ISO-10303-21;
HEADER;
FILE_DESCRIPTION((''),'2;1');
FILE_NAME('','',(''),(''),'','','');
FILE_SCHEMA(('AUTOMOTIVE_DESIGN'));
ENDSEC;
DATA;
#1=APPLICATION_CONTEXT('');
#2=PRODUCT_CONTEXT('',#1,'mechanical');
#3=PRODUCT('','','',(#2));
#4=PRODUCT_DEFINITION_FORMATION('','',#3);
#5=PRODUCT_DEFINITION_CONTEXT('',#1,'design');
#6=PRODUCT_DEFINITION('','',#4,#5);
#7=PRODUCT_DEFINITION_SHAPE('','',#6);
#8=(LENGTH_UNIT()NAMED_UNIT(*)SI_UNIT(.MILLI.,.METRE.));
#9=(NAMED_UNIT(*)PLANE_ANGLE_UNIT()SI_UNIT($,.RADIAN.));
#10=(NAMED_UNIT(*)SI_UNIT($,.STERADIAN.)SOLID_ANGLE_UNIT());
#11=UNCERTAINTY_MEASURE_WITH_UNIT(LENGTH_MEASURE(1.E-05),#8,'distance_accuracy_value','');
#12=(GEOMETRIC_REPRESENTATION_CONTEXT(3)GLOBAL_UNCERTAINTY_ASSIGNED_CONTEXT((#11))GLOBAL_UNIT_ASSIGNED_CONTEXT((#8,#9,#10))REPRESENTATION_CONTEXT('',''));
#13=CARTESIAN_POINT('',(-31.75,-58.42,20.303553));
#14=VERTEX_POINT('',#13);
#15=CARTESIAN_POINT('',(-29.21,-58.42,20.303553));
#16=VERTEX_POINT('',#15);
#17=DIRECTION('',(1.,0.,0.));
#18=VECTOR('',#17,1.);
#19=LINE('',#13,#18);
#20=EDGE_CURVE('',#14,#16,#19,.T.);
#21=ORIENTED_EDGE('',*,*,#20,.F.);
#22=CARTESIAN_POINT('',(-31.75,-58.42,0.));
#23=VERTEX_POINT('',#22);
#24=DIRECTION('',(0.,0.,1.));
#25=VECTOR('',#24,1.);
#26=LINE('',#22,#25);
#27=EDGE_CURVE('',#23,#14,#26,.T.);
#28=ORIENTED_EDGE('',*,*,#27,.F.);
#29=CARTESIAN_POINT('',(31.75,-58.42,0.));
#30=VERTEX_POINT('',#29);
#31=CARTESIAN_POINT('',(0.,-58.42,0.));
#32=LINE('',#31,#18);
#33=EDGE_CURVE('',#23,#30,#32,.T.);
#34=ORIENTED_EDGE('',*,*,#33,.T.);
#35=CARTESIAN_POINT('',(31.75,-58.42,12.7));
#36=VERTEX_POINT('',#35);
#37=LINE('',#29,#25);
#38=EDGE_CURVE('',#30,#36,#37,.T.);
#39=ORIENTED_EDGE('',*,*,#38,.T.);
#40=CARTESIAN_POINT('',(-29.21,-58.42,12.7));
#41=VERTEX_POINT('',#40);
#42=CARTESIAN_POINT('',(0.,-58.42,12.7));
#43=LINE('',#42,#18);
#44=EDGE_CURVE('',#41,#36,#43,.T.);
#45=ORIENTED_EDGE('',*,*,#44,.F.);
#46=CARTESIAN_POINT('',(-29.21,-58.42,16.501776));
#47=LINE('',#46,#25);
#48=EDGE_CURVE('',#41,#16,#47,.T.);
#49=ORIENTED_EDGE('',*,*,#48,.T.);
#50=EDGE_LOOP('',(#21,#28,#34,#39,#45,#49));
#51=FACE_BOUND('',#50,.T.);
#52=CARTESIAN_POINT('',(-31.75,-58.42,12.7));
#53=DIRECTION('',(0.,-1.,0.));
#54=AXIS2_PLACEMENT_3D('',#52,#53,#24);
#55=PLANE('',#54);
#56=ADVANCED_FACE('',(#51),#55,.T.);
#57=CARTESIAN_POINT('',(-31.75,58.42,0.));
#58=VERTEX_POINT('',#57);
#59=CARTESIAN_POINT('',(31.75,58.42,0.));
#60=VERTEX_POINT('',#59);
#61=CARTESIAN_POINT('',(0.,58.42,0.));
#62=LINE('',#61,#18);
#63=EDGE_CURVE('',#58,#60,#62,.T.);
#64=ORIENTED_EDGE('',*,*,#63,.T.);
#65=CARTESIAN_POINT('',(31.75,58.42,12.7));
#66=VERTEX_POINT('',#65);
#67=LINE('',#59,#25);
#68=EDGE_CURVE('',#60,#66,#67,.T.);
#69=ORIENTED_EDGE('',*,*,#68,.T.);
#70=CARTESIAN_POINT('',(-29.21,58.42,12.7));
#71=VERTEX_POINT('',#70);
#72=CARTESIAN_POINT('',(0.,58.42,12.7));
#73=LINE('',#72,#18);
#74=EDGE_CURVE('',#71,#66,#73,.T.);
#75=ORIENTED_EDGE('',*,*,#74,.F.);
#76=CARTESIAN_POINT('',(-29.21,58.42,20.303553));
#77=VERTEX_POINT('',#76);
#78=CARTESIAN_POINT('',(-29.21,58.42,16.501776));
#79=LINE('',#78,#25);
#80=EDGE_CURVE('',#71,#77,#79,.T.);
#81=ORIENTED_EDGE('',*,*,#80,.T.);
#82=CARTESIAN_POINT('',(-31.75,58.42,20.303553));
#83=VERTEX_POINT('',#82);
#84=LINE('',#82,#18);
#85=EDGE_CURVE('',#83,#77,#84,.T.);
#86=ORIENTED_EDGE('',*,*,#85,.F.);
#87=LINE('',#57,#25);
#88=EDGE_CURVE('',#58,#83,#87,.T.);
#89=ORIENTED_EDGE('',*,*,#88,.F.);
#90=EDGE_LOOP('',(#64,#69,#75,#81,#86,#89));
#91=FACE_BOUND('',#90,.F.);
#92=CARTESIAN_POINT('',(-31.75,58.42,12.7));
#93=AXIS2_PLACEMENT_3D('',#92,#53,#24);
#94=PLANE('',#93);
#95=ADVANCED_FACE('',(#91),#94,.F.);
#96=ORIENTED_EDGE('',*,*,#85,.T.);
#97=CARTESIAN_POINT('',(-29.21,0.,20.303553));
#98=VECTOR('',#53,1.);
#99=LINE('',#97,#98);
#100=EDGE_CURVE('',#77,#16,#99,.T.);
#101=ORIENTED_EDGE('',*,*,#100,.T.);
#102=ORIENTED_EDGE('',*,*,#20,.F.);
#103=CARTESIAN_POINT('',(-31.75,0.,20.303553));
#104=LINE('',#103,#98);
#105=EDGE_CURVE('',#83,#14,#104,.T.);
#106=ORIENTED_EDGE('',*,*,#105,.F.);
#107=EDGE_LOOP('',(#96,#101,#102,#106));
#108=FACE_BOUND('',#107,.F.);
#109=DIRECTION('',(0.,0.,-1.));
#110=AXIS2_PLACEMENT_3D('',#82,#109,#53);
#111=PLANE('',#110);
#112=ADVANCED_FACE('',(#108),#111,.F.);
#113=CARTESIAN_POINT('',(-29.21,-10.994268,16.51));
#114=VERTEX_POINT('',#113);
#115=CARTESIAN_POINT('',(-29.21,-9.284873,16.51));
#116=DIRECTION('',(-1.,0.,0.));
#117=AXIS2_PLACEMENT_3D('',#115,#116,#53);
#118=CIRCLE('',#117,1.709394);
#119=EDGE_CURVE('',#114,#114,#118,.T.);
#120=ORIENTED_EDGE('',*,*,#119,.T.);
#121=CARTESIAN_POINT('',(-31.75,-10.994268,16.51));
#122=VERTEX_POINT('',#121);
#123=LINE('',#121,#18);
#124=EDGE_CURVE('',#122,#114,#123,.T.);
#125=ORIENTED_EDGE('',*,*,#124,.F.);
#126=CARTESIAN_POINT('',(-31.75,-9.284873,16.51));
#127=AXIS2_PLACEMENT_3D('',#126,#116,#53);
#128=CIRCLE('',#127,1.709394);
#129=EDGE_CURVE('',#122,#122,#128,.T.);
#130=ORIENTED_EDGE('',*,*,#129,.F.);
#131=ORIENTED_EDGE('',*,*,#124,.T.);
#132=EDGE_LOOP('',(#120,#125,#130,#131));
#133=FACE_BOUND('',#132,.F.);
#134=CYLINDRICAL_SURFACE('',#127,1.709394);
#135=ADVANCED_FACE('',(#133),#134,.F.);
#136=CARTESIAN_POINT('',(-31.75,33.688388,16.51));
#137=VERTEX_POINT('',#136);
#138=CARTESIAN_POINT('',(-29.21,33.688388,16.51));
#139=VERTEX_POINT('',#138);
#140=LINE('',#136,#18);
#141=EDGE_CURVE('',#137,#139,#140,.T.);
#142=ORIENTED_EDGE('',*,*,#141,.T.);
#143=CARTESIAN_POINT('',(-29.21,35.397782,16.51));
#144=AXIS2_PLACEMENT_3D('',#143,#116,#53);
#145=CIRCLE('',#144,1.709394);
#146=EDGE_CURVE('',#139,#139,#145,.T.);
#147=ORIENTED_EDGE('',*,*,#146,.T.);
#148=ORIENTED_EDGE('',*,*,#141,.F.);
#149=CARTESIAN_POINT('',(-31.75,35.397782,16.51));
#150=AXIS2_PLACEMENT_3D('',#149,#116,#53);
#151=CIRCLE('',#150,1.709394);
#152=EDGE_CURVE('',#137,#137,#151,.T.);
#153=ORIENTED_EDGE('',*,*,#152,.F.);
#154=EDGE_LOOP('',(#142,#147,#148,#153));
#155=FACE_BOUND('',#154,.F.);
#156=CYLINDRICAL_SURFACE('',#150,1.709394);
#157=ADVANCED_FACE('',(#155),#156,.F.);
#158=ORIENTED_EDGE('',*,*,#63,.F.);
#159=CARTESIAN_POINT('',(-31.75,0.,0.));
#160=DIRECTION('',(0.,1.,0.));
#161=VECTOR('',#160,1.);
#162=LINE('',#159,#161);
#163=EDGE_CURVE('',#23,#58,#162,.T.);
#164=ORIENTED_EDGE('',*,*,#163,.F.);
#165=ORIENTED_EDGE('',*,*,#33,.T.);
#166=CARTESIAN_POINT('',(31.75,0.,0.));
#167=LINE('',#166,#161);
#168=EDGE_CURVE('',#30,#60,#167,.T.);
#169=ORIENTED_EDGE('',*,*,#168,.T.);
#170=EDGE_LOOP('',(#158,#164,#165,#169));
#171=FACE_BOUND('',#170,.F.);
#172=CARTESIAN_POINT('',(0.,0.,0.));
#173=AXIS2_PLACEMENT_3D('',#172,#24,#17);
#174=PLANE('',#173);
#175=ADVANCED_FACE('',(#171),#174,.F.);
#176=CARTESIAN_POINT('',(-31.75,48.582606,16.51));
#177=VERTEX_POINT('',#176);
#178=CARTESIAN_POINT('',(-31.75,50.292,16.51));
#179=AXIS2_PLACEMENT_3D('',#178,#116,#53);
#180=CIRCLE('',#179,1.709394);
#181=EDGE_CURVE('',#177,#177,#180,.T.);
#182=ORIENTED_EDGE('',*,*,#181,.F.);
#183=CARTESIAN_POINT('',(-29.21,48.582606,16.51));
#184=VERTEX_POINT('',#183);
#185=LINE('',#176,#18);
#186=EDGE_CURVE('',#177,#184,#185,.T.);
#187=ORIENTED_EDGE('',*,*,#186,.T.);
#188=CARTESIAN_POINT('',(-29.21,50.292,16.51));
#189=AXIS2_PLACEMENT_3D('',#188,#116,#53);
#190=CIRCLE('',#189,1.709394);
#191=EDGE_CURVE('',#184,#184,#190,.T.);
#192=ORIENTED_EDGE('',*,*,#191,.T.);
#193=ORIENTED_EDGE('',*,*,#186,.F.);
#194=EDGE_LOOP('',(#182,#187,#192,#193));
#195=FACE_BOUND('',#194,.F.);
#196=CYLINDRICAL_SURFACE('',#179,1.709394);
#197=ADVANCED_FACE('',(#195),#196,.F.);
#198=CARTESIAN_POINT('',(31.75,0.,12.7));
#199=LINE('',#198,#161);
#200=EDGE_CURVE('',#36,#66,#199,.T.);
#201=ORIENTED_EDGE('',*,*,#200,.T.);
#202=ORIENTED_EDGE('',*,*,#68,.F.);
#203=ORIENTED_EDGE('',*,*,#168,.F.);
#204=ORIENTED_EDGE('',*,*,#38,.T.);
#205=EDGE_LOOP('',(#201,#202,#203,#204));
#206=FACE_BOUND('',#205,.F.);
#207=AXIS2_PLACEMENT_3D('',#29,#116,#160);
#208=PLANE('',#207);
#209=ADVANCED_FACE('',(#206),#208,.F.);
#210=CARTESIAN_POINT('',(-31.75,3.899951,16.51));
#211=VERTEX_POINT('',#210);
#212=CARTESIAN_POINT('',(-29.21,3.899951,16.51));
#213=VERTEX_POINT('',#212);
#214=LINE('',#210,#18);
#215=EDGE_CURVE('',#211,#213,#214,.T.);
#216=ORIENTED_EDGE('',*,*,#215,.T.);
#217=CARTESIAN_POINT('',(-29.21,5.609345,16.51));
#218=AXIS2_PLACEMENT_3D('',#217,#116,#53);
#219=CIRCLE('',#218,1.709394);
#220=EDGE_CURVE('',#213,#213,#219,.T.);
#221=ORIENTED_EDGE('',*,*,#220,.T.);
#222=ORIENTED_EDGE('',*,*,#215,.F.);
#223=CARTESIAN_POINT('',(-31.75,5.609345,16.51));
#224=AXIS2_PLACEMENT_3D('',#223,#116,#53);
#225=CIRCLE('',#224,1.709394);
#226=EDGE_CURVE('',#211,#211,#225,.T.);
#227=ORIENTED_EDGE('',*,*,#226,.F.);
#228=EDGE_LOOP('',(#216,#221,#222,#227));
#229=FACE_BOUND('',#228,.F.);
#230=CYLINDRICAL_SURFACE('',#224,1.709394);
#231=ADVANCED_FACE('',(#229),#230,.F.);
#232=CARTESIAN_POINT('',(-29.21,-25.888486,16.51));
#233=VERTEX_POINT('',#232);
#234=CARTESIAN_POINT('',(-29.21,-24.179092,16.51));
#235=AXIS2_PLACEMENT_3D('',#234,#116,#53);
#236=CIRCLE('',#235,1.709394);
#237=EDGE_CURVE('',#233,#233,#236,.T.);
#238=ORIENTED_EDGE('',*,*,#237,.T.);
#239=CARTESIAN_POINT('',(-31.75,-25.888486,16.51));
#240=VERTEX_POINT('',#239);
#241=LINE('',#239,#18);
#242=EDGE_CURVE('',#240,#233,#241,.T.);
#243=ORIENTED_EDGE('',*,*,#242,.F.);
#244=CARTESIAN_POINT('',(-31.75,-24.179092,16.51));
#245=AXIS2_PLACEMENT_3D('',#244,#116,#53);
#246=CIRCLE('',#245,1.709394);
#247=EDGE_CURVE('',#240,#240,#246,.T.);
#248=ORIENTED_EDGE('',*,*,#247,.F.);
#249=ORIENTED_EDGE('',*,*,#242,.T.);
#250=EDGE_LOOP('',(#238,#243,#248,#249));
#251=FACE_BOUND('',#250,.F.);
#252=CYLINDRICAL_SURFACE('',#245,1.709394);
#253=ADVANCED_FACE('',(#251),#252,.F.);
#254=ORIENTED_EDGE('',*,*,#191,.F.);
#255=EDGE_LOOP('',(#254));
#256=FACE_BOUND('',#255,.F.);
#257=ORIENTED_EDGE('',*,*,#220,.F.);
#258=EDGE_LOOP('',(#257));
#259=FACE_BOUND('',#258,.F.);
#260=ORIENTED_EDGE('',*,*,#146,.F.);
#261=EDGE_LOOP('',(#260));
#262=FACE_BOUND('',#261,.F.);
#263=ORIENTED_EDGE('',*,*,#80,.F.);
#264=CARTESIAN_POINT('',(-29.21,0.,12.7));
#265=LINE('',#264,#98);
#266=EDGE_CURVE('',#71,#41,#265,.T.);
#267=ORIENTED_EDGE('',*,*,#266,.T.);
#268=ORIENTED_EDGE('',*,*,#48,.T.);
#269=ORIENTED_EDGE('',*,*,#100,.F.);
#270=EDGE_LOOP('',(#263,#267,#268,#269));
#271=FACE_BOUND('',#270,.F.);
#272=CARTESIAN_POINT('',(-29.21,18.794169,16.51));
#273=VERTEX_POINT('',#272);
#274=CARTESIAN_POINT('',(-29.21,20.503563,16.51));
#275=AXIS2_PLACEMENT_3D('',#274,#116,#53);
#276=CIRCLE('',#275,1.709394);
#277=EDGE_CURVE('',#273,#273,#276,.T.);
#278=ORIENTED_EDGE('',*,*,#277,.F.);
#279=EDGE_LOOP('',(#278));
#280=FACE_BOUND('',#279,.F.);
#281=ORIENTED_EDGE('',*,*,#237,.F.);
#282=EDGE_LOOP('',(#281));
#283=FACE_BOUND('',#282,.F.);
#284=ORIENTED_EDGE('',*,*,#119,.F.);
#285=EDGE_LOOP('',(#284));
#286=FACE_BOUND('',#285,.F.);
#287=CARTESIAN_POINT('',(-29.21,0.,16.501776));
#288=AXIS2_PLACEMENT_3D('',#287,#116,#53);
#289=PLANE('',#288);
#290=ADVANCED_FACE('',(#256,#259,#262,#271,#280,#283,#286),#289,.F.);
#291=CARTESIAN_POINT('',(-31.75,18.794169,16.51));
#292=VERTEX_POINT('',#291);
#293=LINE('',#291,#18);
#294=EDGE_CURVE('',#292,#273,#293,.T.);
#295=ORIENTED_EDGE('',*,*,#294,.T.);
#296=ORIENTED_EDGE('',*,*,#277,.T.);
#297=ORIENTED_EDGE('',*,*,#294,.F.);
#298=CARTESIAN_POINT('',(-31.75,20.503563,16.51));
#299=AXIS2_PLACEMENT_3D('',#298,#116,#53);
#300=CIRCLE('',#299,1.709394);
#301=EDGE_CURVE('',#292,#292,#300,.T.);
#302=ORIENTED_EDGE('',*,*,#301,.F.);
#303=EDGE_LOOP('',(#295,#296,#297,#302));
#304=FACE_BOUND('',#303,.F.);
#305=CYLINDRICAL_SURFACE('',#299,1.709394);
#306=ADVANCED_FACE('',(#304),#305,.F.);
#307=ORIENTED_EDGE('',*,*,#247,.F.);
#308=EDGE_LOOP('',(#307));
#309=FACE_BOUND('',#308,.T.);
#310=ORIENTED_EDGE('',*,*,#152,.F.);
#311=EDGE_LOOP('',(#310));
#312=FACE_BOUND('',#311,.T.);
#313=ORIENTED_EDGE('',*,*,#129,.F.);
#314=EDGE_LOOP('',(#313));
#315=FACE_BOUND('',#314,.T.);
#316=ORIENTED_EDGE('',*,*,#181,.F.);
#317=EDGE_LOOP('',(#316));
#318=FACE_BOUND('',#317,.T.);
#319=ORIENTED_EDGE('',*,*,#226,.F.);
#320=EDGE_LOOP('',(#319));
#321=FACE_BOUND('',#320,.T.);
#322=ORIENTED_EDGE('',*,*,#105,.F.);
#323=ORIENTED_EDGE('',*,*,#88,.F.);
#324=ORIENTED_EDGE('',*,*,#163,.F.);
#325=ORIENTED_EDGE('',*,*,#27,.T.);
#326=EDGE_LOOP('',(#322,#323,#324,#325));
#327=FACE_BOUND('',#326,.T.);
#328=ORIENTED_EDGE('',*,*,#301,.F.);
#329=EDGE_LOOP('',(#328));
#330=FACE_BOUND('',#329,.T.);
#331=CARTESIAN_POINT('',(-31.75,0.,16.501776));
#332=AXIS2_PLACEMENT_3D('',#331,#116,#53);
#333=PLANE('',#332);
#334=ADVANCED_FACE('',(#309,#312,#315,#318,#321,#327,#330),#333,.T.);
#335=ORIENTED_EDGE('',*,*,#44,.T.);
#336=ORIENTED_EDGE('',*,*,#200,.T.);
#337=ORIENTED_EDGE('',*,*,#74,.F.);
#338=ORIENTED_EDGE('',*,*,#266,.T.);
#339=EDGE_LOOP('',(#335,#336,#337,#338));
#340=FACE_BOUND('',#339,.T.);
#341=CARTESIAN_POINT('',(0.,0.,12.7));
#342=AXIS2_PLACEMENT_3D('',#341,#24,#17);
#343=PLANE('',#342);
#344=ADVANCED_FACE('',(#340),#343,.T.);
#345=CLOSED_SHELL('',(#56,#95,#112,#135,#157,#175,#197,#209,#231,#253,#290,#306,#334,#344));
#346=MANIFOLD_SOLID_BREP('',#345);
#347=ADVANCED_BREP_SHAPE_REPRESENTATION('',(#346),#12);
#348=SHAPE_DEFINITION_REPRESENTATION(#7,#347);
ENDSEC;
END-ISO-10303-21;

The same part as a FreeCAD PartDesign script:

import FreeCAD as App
import Part
import Sketcher
Q = App.Units.Quantity


def add_polygon(sketch, points):
    """Adds a closed chain of lines whose ends are joined by coincident constraints."""
    first, n = sketch.GeometryCount, len(points)
    for a, b in zip(points, points[1:] + points[:1]):
        sketch.addGeometry(Part.LineSegment(App.Vector(*a, 0), App.Vector(*b, 0)), False)
    for i in range(n):
        sketch.addConstraint(Sketcher.Constraint("Coincident", first + i, 2, first + (i + 1) % n, 1))

doc = App.newDocument("Part")
body = doc.addObject("PartDesign::Body", "Body")

# Sketch on XY plane
sketch1 = doc.addObject("Sketcher::SketchObject", "Sketch")
body.addObject(sketch1)
sketch1.AttachmentSupport = (doc.XY_Plane, [""])
sketch1.MapMode = "FlatFace"
add_polygon(sketch1, [(-32, 58), (-32, -58), (32, -58), (32, 58)])  # lines 0-3
sketch1.addConstraint(Sketcher.Constraint("Vertical", 0))
sketch1.addConstraint(Sketcher.Constraint("Horizontal", 1))
sketch1.addConstraint(Sketcher.Constraint("Vertical", 2))
sketch1.addConstraint(Sketcher.Constraint("Horizontal", 3))
sketch1.addConstraint(Sketcher.Constraint("Symmetric", 0, 2, 2, 2, -1, 1))
sketch1.addConstraint(Sketcher.Constraint("DistanceX", 1, 1, 1, 2, Q("2.5 in")))
sketch1.addConstraint(Sketcher.Constraint("DistanceY", 0, 2, 0, 1, Q("4.6 in")))
pad1 = doc.addObject("PartDesign::Pad", "Pad")
body.addObject(pad1)
pad1.Profile = sketch1
pad1.Length = Q("0.5 in")

# Sketch on YZ plane
sketch2 = doc.addObject("Sketcher::SketchObject", "Sketch001")
body.addObject(sketch2)
sketch2.AttachmentSupport = (doc.YZ_Plane, [""])
sketch2.MapMode = "FlatFace"
sketch2.AttachmentOffset = App.Placement(App.Vector(0, 0, -1.25 * 25.4), App.Rotation())
add_polygon(sketch2, [(58.4, 20.3), (58.4, 12.7), (-58.4, 12.7), (-58.4, 20.3)])  # lines 0-3
sketch2.addGeometry(Part.Circle(App.Vector(50.3, 16.5, 0), App.Vector(0, 0, 1), 1.7), False)  # 4
sketch2.addGeometry(Part.Circle(App.Vector(35.4, 16.5, 0), App.Vector(0, 0, 1), 1.7), False)  # 5
sketch2.addGeometry(Part.Circle(App.Vector(20.5, 16.5, 0), App.Vector(0, 0, 1), 1.7), False)  # 6
sketch2.addGeometry(Part.Circle(App.Vector(5.6, 16.5, 0), App.Vector(0, 0, 1), 1.7), False)  # 7
sketch2.addGeometry(Part.Circle(App.Vector(-9.3, 16.5, 0), App.Vector(0, 0, 1), 1.7), False)  # 8
sketch2.addGeometry(Part.Circle(App.Vector(-24.2, 16.5, 0), App.Vector(0, 0, 1), 1.7), False)  # 9
sketch2.addConstraint(Sketcher.Constraint("Vertical", 0))
sketch2.addConstraint(Sketcher.Constraint("Horizontal", 1))
sketch2.addConstraint(Sketcher.Constraint("Vertical", 2))
sketch2.addConstraint(Sketcher.Constraint("Horizontal", 3))
sketch2.addConstraint(Sketcher.Constraint("Equal", 4, 5))
sketch2.addConstraint(Sketcher.Constraint("Equal", 5, 6))
sketch2.addConstraint(Sketcher.Constraint("Equal", 6, 7))
sketch2.addConstraint(Sketcher.Constraint("Equal", 7, 8))
sketch2.addConstraint(Sketcher.Constraint("Equal", 8, 9))
sketch2.addConstraint(Sketcher.Constraint("Horizontal", 4, 3, 5, 3))
sketch2.addConstraint(Sketcher.Constraint("Horizontal", 5, 3, 6, 3))
sketch2.addConstraint(Sketcher.Constraint("Horizontal", 6, 3, 7, 3))
sketch2.addConstraint(Sketcher.Constraint("Horizontal", 7, 3, 8, 3))
sketch2.addConstraint(Sketcher.Constraint("Horizontal", 8, 3, 9, 3))
sketch2.addConstraint(Sketcher.Constraint("DistanceX", 1, 2, 1, 1, Q("4.6 in")))
sketch2.addConstraint(Sketcher.Constraint("DistanceX", -1, 1, 0, 2, Q("2.3 in")))
sketch2.addConstraint(Sketcher.Constraint("DistanceY", -1, 1, 0, 2, Q("0.5 in")))
sketch2.addConstraint(Sketcher.Constraint("DistanceX", -1, 1, 4, 3, Q("1.98 in")))
sketch2.addConstraint(Sketcher.Constraint("DistanceY", -1, 1, 4, 3, Q("0.65 in")))
sketch2.addConstraint(Sketcher.Constraint("Diameter", 4, Q("3.418788 mm")))
sketch2.addConstraint(Sketcher.Constraint("DistanceY", 0, 2, 0, 1, Q("7.603553 mm")))
sketch2.addConstraint(Sketcher.Constraint("DistanceX", -1, 1, 5, 3, Q("35.397782 mm")))
sketch2.addConstraint(Sketcher.Constraint("DistanceX", 9, 3, -1, 1, Q("24.179092 mm")))
sketch2.addConstraint(Sketcher.Constraint("DistanceX", 6, 3, 5, 3, Q("14.894218 mm")))
sketch2.addConstraint(Sketcher.Constraint("DistanceX", 7, 3, 6, 3, Q("14.894218 mm")))
sketch2.addConstraint(Sketcher.Constraint("DistanceX", 8, 3, 7, 3, Q("14.894218 mm")))
pad2 = doc.addObject("PartDesign::Pad", "Pad001")
body.addObject(pad2)
pad2.Profile = sketch2
pad2.Length = Q("0.1 in")

doc.recompute()
